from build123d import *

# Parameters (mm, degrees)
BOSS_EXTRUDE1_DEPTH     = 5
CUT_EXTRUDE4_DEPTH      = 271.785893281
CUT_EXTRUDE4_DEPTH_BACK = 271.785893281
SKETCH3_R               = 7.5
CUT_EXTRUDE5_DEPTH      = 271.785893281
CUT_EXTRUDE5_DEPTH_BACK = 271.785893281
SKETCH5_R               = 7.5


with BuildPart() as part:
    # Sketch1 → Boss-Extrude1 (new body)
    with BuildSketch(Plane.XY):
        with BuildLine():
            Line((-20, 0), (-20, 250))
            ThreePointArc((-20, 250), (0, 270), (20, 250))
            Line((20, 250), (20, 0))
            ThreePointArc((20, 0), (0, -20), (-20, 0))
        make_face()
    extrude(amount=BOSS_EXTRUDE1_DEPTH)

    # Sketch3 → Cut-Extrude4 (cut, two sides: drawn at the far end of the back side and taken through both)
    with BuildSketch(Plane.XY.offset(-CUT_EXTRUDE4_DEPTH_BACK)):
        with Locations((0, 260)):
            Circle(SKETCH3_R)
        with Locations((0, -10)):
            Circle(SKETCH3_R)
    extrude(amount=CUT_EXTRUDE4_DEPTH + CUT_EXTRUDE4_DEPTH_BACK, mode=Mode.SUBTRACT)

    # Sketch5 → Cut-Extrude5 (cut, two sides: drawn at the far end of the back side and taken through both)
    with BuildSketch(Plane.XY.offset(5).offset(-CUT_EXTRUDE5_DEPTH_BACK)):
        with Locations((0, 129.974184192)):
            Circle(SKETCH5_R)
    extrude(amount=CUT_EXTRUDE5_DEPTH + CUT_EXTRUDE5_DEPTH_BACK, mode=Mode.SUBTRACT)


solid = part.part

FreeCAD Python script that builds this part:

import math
import FreeCAD as App
import Part
import Sketcher
from FreeCAD import Vector
Q = App.Units.Quantity

doc = App.newDocument("Part")
body = doc.addObject("PartDesign::Body", "Body")

# Sketch on XY plane
sketch1 = body.newObject("Sketcher::SketchObject", "Sketch")
sketch1.AttachmentSupport = (doc.getObject("XY_Plane"), [""])
sketch1.MapMode = "FlatFace"
sketch1.addGeometry([
    Part.LineSegment(Vector(-20, 250, 0), Vector(-20, 0, 0)),
    Part.ArcOfCircle(Part.Circle(Vector(0, 0, 0), Vector(0, 0, 1), 20), math.radians(180), math.radians(360)),
    Part.LineSegment(Vector(20, 0, 0), Vector(20, 250, 0)),
    Part.ArcOfCircle(Part.Circle(Vector(0, 250, 0), Vector(0, 0, 1), 20), math.radians(0), math.radians(180)),
], False)
sketch1.addConstraint([
    Sketcher.Constraint("Tangent", 0, 2, 1, 1),
    Sketcher.Constraint("Tangent", 1, 2, 2, 1),
    Sketcher.Constraint("Tangent", 2, 2, 3, 1),
    Sketcher.Constraint("Tangent", 3, 2, 0, 1),
    Sketcher.Constraint("Vertical", 0),
    Sketcher.Constraint("Vertical", 2),
    Sketcher.Constraint("Coincident", 1, 3, -1, 1),
    Sketcher.Constraint("Radius", 1, Q("20 mm")),
    Sketcher.Constraint("DistanceY", 0, 2, 0, 1, Q("250 mm")),
])
pad1 = body.newObject("PartDesign::Pad", "Pad")
pad1.Profile = sketch1
pad1.Length = 5

# Sketch on XY plane
sketch2 = body.newObject("Sketcher::SketchObject", "Sketch001")
sketch2.AttachmentSupport = (doc.getObject("XY_Plane"), [""])
sketch2.MapMode = "FlatFace"
sketch2.addGeometry([
    Part.Circle(Vector(0, 260, 0), Vector(0, 0, 1), 7.5),
    Part.Circle(Vector(0, -10, 0), Vector(0, 0, 1), 7.5),
], False)
sketch2.addConstraint([
    Sketcher.Constraint("Equal", 0, 1),
    Sketcher.Constraint("PointOnObject", 0, 3, -2),
    Sketcher.Constraint("PointOnObject", 1, 3, -2),
    Sketcher.Constraint("Diameter", 0, Q("15 mm")),
    Sketcher.Constraint("DistanceY", -1, 1, 0, 3, Q("260 mm")),
    Sketcher.Constraint("DistanceY", 1, 3, -1, 1, Q("10 mm")),
])
pocket1 = body.newObject("PartDesign::Pocket", "Pocket")
pocket1.Profile = sketch2
pocket1.Type = "ThroughAll"
pocket1.Midplane = True

# Sketch on XY plane
sketch3 = body.newObject("Sketcher::SketchObject", "Sketch002")
sketch3.AttachmentSupport = (doc.getObject("XY_Plane"), [""])
sketch3.MapMode = "FlatFace"
sketch3.AttachmentOffset = App.Placement(Vector(0, 0, 5), App.Rotation())
sketch3.addGeometry(Part.Circle(Vector(0, 129.974184, 0), Vector(0, 0, 1), 7.5), False)
sketch3.addConstraint([
    Sketcher.Constraint("PointOnObject", 0, 3, -2),
    Sketcher.Constraint("Diameter", 0, Q("15 mm")),
    Sketcher.Constraint("DistanceY", -1, 1, 0, 3, Q("129.974184 mm")),
])
pocket2 = body.newObject("PartDesign::Pocket", "Pocket001")
pocket2.Profile = sketch3
pocket2.Type = "ThroughAll"
pocket2.Midplane = True

doc.recompute()
